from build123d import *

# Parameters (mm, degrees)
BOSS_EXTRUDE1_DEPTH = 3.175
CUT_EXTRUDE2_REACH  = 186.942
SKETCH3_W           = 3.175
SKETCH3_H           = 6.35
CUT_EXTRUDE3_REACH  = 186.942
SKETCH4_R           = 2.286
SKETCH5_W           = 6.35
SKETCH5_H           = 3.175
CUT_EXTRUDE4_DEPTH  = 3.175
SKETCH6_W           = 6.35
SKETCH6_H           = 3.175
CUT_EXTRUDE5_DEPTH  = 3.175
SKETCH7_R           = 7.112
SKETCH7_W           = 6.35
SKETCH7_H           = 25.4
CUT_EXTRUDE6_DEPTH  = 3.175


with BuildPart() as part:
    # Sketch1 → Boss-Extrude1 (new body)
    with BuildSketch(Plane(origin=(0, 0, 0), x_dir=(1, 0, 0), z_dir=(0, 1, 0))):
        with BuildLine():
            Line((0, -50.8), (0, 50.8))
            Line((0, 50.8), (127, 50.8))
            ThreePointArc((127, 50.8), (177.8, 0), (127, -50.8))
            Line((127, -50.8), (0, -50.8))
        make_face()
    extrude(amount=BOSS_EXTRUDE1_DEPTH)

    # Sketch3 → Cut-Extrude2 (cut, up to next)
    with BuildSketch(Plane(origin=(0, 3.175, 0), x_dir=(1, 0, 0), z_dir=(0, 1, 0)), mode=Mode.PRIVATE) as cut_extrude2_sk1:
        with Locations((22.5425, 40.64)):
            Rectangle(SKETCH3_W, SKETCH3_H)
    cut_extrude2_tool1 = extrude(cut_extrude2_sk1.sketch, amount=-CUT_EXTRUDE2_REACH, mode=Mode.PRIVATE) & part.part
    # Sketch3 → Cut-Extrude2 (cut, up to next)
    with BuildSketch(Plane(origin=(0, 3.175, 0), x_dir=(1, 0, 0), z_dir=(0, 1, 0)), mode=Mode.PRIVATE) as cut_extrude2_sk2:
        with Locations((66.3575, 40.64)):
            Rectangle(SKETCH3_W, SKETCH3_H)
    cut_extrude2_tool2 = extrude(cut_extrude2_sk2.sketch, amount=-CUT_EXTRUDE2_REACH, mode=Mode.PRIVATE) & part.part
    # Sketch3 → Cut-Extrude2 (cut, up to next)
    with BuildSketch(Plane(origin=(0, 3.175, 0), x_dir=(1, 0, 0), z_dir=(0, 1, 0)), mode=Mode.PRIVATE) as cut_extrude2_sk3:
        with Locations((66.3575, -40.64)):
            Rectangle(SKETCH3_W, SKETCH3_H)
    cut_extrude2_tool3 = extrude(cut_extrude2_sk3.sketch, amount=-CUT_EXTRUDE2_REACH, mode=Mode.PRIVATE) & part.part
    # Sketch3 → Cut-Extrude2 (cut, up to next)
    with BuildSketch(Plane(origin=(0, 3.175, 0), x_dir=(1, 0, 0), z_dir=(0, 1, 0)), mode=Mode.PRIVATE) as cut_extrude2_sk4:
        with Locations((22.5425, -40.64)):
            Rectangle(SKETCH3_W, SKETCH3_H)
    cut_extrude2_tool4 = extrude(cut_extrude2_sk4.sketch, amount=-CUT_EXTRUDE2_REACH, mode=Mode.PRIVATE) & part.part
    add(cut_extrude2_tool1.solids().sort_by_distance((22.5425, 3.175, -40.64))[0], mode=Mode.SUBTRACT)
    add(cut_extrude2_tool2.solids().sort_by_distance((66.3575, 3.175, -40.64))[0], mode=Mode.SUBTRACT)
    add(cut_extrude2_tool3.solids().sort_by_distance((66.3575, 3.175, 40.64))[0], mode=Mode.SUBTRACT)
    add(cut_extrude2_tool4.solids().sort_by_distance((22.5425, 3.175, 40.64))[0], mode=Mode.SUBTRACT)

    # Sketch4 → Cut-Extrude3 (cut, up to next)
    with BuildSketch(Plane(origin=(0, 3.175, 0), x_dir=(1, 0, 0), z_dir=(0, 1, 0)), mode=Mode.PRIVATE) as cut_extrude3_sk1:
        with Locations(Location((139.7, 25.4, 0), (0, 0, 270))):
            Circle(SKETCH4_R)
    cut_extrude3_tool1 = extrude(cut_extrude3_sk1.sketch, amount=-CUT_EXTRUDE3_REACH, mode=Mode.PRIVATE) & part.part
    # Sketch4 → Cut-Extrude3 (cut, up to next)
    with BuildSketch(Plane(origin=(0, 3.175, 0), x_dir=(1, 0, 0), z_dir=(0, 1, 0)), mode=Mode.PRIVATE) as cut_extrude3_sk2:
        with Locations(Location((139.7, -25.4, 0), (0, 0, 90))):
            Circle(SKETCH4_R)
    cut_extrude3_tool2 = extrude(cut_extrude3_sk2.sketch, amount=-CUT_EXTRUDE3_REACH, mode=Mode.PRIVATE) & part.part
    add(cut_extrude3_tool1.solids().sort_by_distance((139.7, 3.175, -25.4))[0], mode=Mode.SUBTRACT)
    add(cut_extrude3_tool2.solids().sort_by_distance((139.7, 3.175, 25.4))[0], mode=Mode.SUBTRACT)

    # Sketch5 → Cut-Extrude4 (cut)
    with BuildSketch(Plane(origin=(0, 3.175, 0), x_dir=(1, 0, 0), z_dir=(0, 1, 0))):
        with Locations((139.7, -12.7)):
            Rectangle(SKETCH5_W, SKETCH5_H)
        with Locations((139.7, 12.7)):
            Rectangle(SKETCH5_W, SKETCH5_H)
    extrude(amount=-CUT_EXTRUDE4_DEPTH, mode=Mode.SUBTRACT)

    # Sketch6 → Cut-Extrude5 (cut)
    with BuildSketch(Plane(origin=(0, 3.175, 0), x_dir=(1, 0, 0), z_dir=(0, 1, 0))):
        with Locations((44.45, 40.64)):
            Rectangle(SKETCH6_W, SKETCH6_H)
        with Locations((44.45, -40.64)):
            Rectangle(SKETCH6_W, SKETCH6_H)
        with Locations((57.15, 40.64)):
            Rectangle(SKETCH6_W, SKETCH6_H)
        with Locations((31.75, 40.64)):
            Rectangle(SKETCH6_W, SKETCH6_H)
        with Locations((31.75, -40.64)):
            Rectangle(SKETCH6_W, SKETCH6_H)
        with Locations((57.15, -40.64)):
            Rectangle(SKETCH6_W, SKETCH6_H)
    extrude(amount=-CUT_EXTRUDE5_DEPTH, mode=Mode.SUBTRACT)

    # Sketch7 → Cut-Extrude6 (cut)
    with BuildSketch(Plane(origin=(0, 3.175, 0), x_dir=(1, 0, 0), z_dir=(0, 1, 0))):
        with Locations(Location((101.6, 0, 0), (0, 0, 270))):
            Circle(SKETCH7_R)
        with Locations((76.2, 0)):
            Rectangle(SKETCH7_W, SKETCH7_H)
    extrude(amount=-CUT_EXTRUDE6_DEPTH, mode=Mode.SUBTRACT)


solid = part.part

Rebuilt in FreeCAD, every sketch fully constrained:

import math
import FreeCAD as App
import Part
import Sketcher
from FreeCAD import Vector
Q = App.Units.Quantity


def add_polygon(sketch, points):
    """Adds a closed chain of lines whose ends are joined by coincident constraints."""
    first, n = sketch.GeometryCount, len(points)
    for a, b in zip(points, points[1:] + points[:1]):
        sketch.addGeometry(Part.LineSegment(App.Vector(*a, 0), App.Vector(*b, 0)), False)
    for i in range(n):
        sketch.addConstraint(Sketcher.Constraint("Coincident", first + i, 2, first + (i + 1) % n, 1))

doc = App.newDocument("Part")
params = doc.addObject("Spreadsheet::Sheet", "Params")
for row, (alias, value) in enumerate([
    ("sketch1_radius", "2 in"),
    ("sketch1_width", "5 in"),
    ("pad1_length", "0.125 in"),
    ("sketch2_height", "0.25 in"),
    ("sketch2_width", "0.125 in"),
    ("sketch3_height", "0.25 in"),
    ("sketch3_width", "0.125 in"),
    ("sketch4_height", "0.25 in"),
    ("sketch4_width", "0.125 in"),
    ("sketch5_height", "0.25 in"),
    ("sketch5_width", "0.125 in"),
    ("sketch6_diameter", "0.18 in"),
    ("sketch7_diameter", "0.18 in"),
    ("sketch8_width", "0.25 in"),
    ("sketch8_height", "0.125 in"),
    ("pocket7_length", "0.125 in"),
    ("sketch9_width", "0.25 in"),
    ("sketch9_height", "0.125 in"),
    ("pocket8_length", "0.125 in"),
    ("sketch10_diameter", "0.56 in"),
    ("sketch10_height", "1 in"),
    ("sketch10_width", "0.25 in"),
    ("pocket9_length", "0.125 in"),
], start=1):
    params.set(f"A{row}", alias)
    params.set(f"B{row}", "=" + value)
    params.setAlias(f"B{row}", alias)

body = doc.addObject("PartDesign::Body", "Body")

# Sketch on XZ plane
sketch1 = doc.addObject("Sketcher::SketchObject", "Sketch")
body.addObject(sketch1)
sketch1.AttachmentSupport = (doc.XZ_Plane, [""])
sketch1.MapMode = "FlatFace"
sketch1.addGeometry([
    Part.LineSegment(Vector(0, -51, 0), Vector(0, 51, 0)),
    Part.LineSegment(Vector(0, 51, 0), Vector(127, 51, 0)),
    Part.ArcOfCircle(Part.Circle(Vector(127, 0, 0), Vector(0, 0, 1), 51), math.radians(-90), math.radians(90)),
    Part.LineSegment(Vector(127, -51, 0), Vector(0, -51, 0)),
], False)
sketch1.addConstraint([
    Sketcher.Constraint("Coincident", 0, 2, 1, 1),
    Sketcher.Constraint("Tangent", 1, 2, 2, 2),
    Sketcher.Constraint("Tangent", 2, 1, 3, 1),
    Sketcher.Constraint("Coincident", 3, 2, 0, 1),
    Sketcher.Constraint("Vertical", 0),
    Sketcher.Constraint("Horizontal", 1),
    Sketcher.Constraint("Horizontal", 3),
    Sketcher.Constraint("Symmetric", 0, 2, 3, 2, -1, 1),
    Sketcher.Constraint("Radius", 2, Q("2 in")),
    Sketcher.Constraint("DistanceX", 1, 1, 1, 2, Q("5 in")),
])
sketch1.setExpression("Constraints[8]", "Params.sketch1_radius")
sketch1.setExpression("Constraints[9]", "Params.sketch1_width")
pad1 = doc.addObject("PartDesign::Pad", "Pad")
body.addObject(pad1)
pad1.Profile = sketch1
pad1.setExpression("Length", "Params.pad1_length")
pad1.Reversed = True

# Sketch on XZ plane
sketch2 = doc.addObject("Sketcher::SketchObject", "Sketch001")
body.addObject(sketch2)
sketch2.AttachmentSupport = (doc.XZ_Plane, [""])
sketch2.MapMode = "FlatFace"
sketch2.AttachmentOffset = App.Placement(Vector(0, 0, -0.125 * 25.4), App.Rotation())
add_polygon(sketch2, [(21, -43.8), (21, -37.5), (24.1, -37.5), (24.1, -43.8)])  # lines 0-3
sketch2.addConstraint([
    Sketcher.Constraint("Vertical", 0),
    Sketcher.Constraint("Horizontal", 1),
    Sketcher.Constraint("Vertical", 2),
    Sketcher.Constraint("Horizontal", 3),
    Sketcher.Constraint("DistanceY", 0, 1, 0, 2, Q("0.25 in")),
    Sketcher.Constraint("DistanceX", 1, 1, 1, 2, Q("0.125 in")),
    Sketcher.Constraint("DistanceX", -1, 1, 1, 2, Q("0.95 in")),
    Sketcher.Constraint("DistanceY", 0, 2, -1, 1, Q("1.475 in")),
])
sketch2.setExpression("Constraints[8]", "Params.sketch2_height")
sketch2.setExpression("Constraints[9]", "Params.sketch2_width")
pocket1 = doc.addObject("PartDesign::Pocket", "Pocket")
body.addObject(pocket1)
pocket1.Profile = sketch2
pocket1.Type = "UpToFirst"
pocket1.Reversed = True

# Sketch on XZ plane
sketch3 = doc.addObject("Sketcher::SketchObject", "Sketch002")
body.addObject(sketch3)
sketch3.AttachmentSupport = (doc.XZ_Plane, [""])
sketch3.MapMode = "FlatFace"
sketch3.AttachmentOffset = App.Placement(Vector(0, 0, -0.125 * 25.4), App.Rotation())
add_polygon(sketch3, [(64.8, -43.8), (64.8, -37.5), (67.9, -37.5), (67.9, -43.8)])  # lines 0-3
sketch3.addConstraint([
    Sketcher.Constraint("Vertical", 0),
    Sketcher.Constraint("Horizontal", 1),
    Sketcher.Constraint("Vertical", 2),
    Sketcher.Constraint("Horizontal", 3),
    Sketcher.Constraint("DistanceY", 0, 1, 0, 2, Q("0.25 in")),
    Sketcher.Constraint("DistanceX", 1, 1, 1, 2, Q("0.125 in")),
    Sketcher.Constraint("DistanceX", -1, 1, 0, 2, Q("2.55 in")),
    Sketcher.Constraint("DistanceY", 0, 2, -1, 1, Q("1.475 in")),
])
sketch3.setExpression("Constraints[8]", "Params.sketch3_height")
sketch3.setExpression("Constraints[9]", "Params.sketch3_width")
pocket2 = doc.addObject("PartDesign::Pocket", "Pocket001")
body.addObject(pocket2)
pocket2.Profile = sketch3
pocket2.Type = "UpToFirst"
pocket2.Reversed = True

# Sketch on XZ plane
sketch4 = doc.addObject("Sketcher::SketchObject", "Sketch003")
body.addObject(sketch4)
sketch4.AttachmentSupport = (doc.XZ_Plane, [""])
sketch4.MapMode = "FlatFace"
sketch4.AttachmentOffset = App.Placement(Vector(0, 0, -0.125 * 25.4), App.Rotation())
add_polygon(sketch4, [(64.8, 37.5), (64.8, 43.8), (67.9, 43.8), (67.9, 37.5)])  # lines 0-3
sketch4.addConstraint([
    Sketcher.Constraint("Vertical", 0),
    Sketcher.Constraint("Horizontal", 1),
    Sketcher.Constraint("Vertical", 2),
    Sketcher.Constraint("Horizontal", 3),
    Sketcher.Constraint("DistanceY", 0, 1, 0, 2, Q("0.25 in")),
    Sketcher.Constraint("DistanceX", 1, 1, 1, 2, Q("0.125 in")),
    Sketcher.Constraint("DistanceX", -1, 1, 0, 2, Q("2.55 in")),
    Sketcher.Constraint("DistanceY", -1, 1, 0, 2, Q("1.725 in")),
])
sketch4.setExpression("Constraints[8]", "Params.sketch4_height")
sketch4.setExpression("Constraints[9]", "Params.sketch4_width")
pocket3 = doc.addObject("PartDesign::Pocket", "Pocket002")
body.addObject(pocket3)
pocket3.Profile = sketch4
pocket3.Type = "UpToFirst"
pocket3.Reversed = True

# Sketch on XZ plane
sketch5 = doc.addObject("Sketcher::SketchObject", "Sketch004")
body.addObject(sketch5)
sketch5.AttachmentSupport = (doc.XZ_Plane, [""])
sketch5.MapMode = "FlatFace"
sketch5.AttachmentOffset = App.Placement(Vector(0, 0, -0.125 * 25.4), App.Rotation())
add_polygon(sketch5, [(21, 37.5), (21, 43.8), (24.1, 43.8), (24.1, 37.5)])  # lines 0-3
sketch5.addConstraint([
    Sketcher.Constraint("Vertical", 0),
    Sketcher.Constraint("Horizontal", 1),
    Sketcher.Constraint("Vertical", 2),
    Sketcher.Constraint("Horizontal", 3),
    Sketcher.Constraint("DistanceY", 0, 1, 0, 2, Q("0.25 in")),
    Sketcher.Constraint("DistanceX", 1, 1, 1, 2, Q("0.125 in")),
    Sketcher.Constraint("DistanceX", -1, 1, 1, 2, Q("0.95 in")),
    Sketcher.Constraint("DistanceY", -1, 1, 0, 2, Q("1.725 in")),
])
sketch5.setExpression("Constraints[8]", "Params.sketch5_height")
sketch5.setExpression("Constraints[9]", "Params.sketch5_width")
pocket4 = doc.addObject("PartDesign::Pocket", "Pocket003")
body.addObject(pocket4)
pocket4.Profile = sketch5
pocket4.Type = "UpToFirst"
pocket4.Reversed = True

# Sketch on XZ plane
sketch6 = doc.addObject("Sketcher::SketchObject", "Sketch005")
body.addObject(sketch6)
sketch6.AttachmentSupport = (doc.XZ_Plane, [""])
sketch6.MapMode = "FlatFace"
sketch6.AttachmentOffset = App.Placement(Vector(0, 0, -0.125 * 25.4), App.Rotation())
sketch6.addGeometry(Part.Circle(Vector(139.7, -25.4, 0), Vector(0, 0, 1), 2.3), False)
sketch6.addConstraint([
    Sketcher.Constraint("Diameter", 0, Q("0.18 in")),
    Sketcher.Constraint("DistanceY", 0, 3, -1, 1, Q("1 in")),
    Sketcher.Constraint("DistanceX", -1, 1, 0, 3, Q("5.5 in")),
])
sketch6.setExpression("Constraints[0]", "Params.sketch6_diameter")
pocket5 = doc.addObject("PartDesign::Pocket", "Pocket004")
body.addObject(pocket5)
pocket5.Profile = sketch6
pocket5.Type = "UpToFirst"
pocket5.Reversed = True

# Sketch on XZ plane
sketch7 = doc.addObject("Sketcher::SketchObject", "Sketch006")
body.addObject(sketch7)
sketch7.AttachmentSupport = (doc.XZ_Plane, [""])
sketch7.MapMode = "FlatFace"
sketch7.AttachmentOffset = App.Placement(Vector(0, 0, -0.125 * 25.4), App.Rotation())
sketch7.addGeometry(Part.Circle(Vector(139.7, 25.4, 0), Vector(0, 0, 1), 2.3), False)
sketch7.addConstraint([
    Sketcher.Constraint("Diameter", 0, Q("0.18 in")),
    Sketcher.Constraint("DistanceY", -1, 1, 0, 3, Q("1 in")),
    Sketcher.Constraint("DistanceX", -1, 1, 0, 3, Q("5.5 in")),
])
sketch7.setExpression("Constraints[0]", "Params.sketch7_diameter")
pocket6 = doc.addObject("PartDesign::Pocket", "Pocket005")
body.addObject(pocket6)
pocket6.Profile = sketch7
pocket6.Type = "UpToFirst"
pocket6.Reversed = True

# Sketch on XZ plane
sketch8 = doc.addObject("Sketcher::SketchObject", "Sketch007")
body.addObject(sketch8)
sketch8.AttachmentSupport = (doc.XZ_Plane, [""])
sketch8.MapMode = "FlatFace"
sketch8.AttachmentOffset = App.Placement(Vector(0, 0, -0.125 * 25.4), App.Rotation())
add_polygon(sketch8, [(136.5, 11.1), (136.5, 14.3), (142.9, 14.3), (142.9, 11.1)])  # lines 0-3
add_polygon(sketch8, [(136.5, -14.3), (136.5, -11.1), (142.9, -11.1), (142.9, -14.3)])  # lines 4-7
sketch8.addConstraint([
    Sketcher.Constraint("Vertical", 0),
    Sketcher.Constraint("Horizontal", 1),
    Sketcher.Constraint("Vertical", 2),
    Sketcher.Constraint("Horizontal", 3),
    Sketcher.Constraint("Vertical", 4),
    Sketcher.Constraint("Horizontal", 5),
    Sketcher.Constraint("Vertical", 6),
    Sketcher.Constraint("Horizontal", 7),
    Sketcher.Constraint("Symmetric", 3, 2, 4, 2, -1),
    Sketcher.Constraint("Symmetric", 1, 2, 6, 2, -1),
    Sketcher.Constraint("DistanceY", 4, 2, 0, 2, Q("1 in")),
    Sketcher.Constraint("DistanceX", 1, 1, 1, 2, Q("0.25 in")),
    Sketcher.Constraint("DistanceY", 0, 1, 0, 2, Q("0.125 in")),
    Sketcher.Constraint("DistanceX", -1, 1, 0, 2, Q("5.375 in")),
])
sketch8.setExpression("Constraints[19]", "Params.sketch8_width")
sketch8.setExpression("Constraints[20]", "Params.sketch8_height")
pocket7 = doc.addObject("PartDesign::Pocket", "Pocket006")
body.addObject(pocket7)
pocket7.Profile = sketch8
pocket7.setExpression("Length", "Params.pocket7_length")
pocket7.Reversed = True

# Sketch on XZ plane
sketch9 = doc.addObject("Sketcher::SketchObject", "Sketch008")
body.addObject(sketch9)
sketch9.AttachmentSupport = (doc.XZ_Plane, [""])
sketch9.MapMode = "FlatFace"
sketch9.AttachmentOffset = App.Placement(Vector(0, 0, -0.125 * 25.4), App.Rotation())
add_polygon(sketch9, [(41.3, -42.2), (41.3, -39.1), (47.6, -39.1), (47.6, -42.2)])  # lines 0-3
add_polygon(sketch9, [(41.3, 39.1), (41.3, 42.2), (47.6, 42.2), (47.6, 39.1)])  # lines 4-7
add_polygon(sketch9, [(54, -42.2), (54, -39.1), (60.3, -39.1), (60.3, -42.2)])  # lines 8-11
add_polygon(sketch9, [(28.6, -42.2), (28.6, -39.1), (34.9, -39.1), (34.9, -42.2)])  # lines 12-15
add_polygon(sketch9, [(28.6, 39.1), (28.6, 42.2), (34.9, 42.2), (34.9, 39.1)])  # lines 16-19
add_polygon(sketch9, [(54, 39.1), (54, 42.2), (60.3, 42.2), (60.3, 39.1)])  # lines 20-23
sketch9.addConstraint([
    Sketcher.Constraint("Vertical", 0),
    Sketcher.Constraint("Horizontal", 1),
    Sketcher.Constraint("Vertical", 2),
    Sketcher.Constraint("Horizontal", 3),
    Sketcher.Constraint("Vertical", 4),
    Sketcher.Constraint("Horizontal", 5),
    Sketcher.Constraint("Vertical", 6),
    Sketcher.Constraint("Horizontal", 7),
    Sketcher.Constraint("Vertical", 8),
    Sketcher.Constraint("Horizontal", 9),
    Sketcher.Constraint("Vertical", 10),
    Sketcher.Constraint("Horizontal", 11),
    Sketcher.Constraint("Vertical", 12),
    Sketcher.Constraint("Horizontal", 13),
    Sketcher.Constraint("Vertical", 14),
    Sketcher.Constraint("Horizontal", 15),
    Sketcher.Constraint("Vertical", 16),
    Sketcher.Constraint("Horizontal", 17),
    Sketcher.Constraint("Vertical", 18),
    Sketcher.Constraint("Horizontal", 19),
    Sketcher.Constraint("Vertical", 20),
    Sketcher.Constraint("Horizontal", 21),
    Sketcher.Constraint("Vertical", 22),
    Sketcher.Constraint("Horizontal", 23),
    Sketcher.Constraint("Symmetric", 3, 2, 4, 2, -1),
    Sketcher.Constraint("Symmetric", 1, 2, 6, 2, -1),
    Sketcher.Constraint("Symmetric", 15, 2, 16, 2, -1),
    Sketcher.Constraint("Symmetric", 13, 2, 18, 2, -1),
    Sketcher.Constraint("Symmetric", 11, 2, 20, 2, -1),
    Sketcher.Constraint("Symmetric", 9, 2, 22, 2, -1),
    Sketcher.Constraint("Horizontal", 1, 2, 8, 2),
    Sketcher.Constraint("Horizontal", 3, 2, 10, 2),
    Sketcher.Constraint("Horizontal", 9, 2, 12, 2),
    Sketcher.Constraint("Horizontal", 11, 2, 14, 2),
    Sketcher.Constraint("Equal", 7, 9),
    Sketcher.Constraint("Equal", 11, 13),
    Sketcher.Constraint("DistanceX", 12, 2, 8, 2, Q("1 in")),
    Sketcher.Constraint("DistanceX", 1, 1, 1, 2, Q("0.25 in")),
    Sketcher.Constraint("DistanceY", 0, 2, 4, 2, Q("3.2 in")),
    Sketcher.Constraint("DistanceX", 0, 2, 8, 2, Q("0.5 in")),
    Sketcher.Constraint("DistanceY", 0, 1, 0, 2, Q("0.125 in")),
    Sketcher.Constraint("DistanceX", -1, 1, 0, 2, Q("1.625 in")),
])
sketch9.setExpression("Constraints[61]", "Params.sketch9_width")
sketch9.setExpression("Constraints[64]", "Params.sketch9_height")
pocket8 = doc.addObject("PartDesign::Pocket", "Pocket007")
body.addObject(pocket8)
pocket8.Profile = sketch9
pocket8.setExpression("Length", "Params.pocket8_length")
pocket8.Reversed = True

# Sketch on XZ plane
sketch10 = doc.addObject("Sketcher::SketchObject", "Sketch009")
body.addObject(sketch10)
sketch10.AttachmentSupport = (doc.XZ_Plane, [""])
sketch10.MapMode = "FlatFace"
sketch10.AttachmentOffset = App.Placement(Vector(0, 0, -0.125 * 25.4), App.Rotation())
sketch10.addGeometry(Part.Circle(Vector(102, 0, 0), Vector(0, 0, 1), 7), False)  # 0
add_polygon(sketch10, [(73, -13), (73, 13), (79, 13), (79, -13)])  # lines 1-4
sketch10.addConstraint([
    Sketcher.Constraint("Vertical", 1),
    Sketcher.Constraint("Horizontal", 2),
    Sketcher.Constraint("Vertical", 3),
    Sketcher.Constraint("Horizontal", 4),
    Sketcher.Constraint("PointOnObject", 0, 3, -1),
    Sketcher.Constraint("Diameter", 0, Q("0.56 in")),
    Sketcher.Constraint("DistanceY", 1, 1, 1, 2, Q("1 in")),
    Sketcher.Constraint("DistanceX", -1, 1, 0, 3, Q("4 in")),
    Sketcher.Constraint("DistanceX", 2, 1, 2, 2, Q("0.25 in")),
    Sketcher.Constraint("DistanceY", -1, 1, 1, 2, Q("0.5 in")),
    Sketcher.Constraint("DistanceX", -1, 1, 1, 2, Q("2.875 in")),
])
sketch10.setExpression("Constraints[9]", "Params.sketch10_diameter")
sketch10.setExpression("Constraints[10]", "Params.sketch10_height")
sketch10.setExpression("Constraints[12]", "Params.sketch10_width")
pocket9 = doc.addObject("PartDesign::Pocket", "Pocket008")
body.addObject(pocket9)
pocket9.Profile = sketch10
pocket9.setExpression("Length", "Params.pocket9_length")
pocket9.Reversed = True

doc.recompute()
